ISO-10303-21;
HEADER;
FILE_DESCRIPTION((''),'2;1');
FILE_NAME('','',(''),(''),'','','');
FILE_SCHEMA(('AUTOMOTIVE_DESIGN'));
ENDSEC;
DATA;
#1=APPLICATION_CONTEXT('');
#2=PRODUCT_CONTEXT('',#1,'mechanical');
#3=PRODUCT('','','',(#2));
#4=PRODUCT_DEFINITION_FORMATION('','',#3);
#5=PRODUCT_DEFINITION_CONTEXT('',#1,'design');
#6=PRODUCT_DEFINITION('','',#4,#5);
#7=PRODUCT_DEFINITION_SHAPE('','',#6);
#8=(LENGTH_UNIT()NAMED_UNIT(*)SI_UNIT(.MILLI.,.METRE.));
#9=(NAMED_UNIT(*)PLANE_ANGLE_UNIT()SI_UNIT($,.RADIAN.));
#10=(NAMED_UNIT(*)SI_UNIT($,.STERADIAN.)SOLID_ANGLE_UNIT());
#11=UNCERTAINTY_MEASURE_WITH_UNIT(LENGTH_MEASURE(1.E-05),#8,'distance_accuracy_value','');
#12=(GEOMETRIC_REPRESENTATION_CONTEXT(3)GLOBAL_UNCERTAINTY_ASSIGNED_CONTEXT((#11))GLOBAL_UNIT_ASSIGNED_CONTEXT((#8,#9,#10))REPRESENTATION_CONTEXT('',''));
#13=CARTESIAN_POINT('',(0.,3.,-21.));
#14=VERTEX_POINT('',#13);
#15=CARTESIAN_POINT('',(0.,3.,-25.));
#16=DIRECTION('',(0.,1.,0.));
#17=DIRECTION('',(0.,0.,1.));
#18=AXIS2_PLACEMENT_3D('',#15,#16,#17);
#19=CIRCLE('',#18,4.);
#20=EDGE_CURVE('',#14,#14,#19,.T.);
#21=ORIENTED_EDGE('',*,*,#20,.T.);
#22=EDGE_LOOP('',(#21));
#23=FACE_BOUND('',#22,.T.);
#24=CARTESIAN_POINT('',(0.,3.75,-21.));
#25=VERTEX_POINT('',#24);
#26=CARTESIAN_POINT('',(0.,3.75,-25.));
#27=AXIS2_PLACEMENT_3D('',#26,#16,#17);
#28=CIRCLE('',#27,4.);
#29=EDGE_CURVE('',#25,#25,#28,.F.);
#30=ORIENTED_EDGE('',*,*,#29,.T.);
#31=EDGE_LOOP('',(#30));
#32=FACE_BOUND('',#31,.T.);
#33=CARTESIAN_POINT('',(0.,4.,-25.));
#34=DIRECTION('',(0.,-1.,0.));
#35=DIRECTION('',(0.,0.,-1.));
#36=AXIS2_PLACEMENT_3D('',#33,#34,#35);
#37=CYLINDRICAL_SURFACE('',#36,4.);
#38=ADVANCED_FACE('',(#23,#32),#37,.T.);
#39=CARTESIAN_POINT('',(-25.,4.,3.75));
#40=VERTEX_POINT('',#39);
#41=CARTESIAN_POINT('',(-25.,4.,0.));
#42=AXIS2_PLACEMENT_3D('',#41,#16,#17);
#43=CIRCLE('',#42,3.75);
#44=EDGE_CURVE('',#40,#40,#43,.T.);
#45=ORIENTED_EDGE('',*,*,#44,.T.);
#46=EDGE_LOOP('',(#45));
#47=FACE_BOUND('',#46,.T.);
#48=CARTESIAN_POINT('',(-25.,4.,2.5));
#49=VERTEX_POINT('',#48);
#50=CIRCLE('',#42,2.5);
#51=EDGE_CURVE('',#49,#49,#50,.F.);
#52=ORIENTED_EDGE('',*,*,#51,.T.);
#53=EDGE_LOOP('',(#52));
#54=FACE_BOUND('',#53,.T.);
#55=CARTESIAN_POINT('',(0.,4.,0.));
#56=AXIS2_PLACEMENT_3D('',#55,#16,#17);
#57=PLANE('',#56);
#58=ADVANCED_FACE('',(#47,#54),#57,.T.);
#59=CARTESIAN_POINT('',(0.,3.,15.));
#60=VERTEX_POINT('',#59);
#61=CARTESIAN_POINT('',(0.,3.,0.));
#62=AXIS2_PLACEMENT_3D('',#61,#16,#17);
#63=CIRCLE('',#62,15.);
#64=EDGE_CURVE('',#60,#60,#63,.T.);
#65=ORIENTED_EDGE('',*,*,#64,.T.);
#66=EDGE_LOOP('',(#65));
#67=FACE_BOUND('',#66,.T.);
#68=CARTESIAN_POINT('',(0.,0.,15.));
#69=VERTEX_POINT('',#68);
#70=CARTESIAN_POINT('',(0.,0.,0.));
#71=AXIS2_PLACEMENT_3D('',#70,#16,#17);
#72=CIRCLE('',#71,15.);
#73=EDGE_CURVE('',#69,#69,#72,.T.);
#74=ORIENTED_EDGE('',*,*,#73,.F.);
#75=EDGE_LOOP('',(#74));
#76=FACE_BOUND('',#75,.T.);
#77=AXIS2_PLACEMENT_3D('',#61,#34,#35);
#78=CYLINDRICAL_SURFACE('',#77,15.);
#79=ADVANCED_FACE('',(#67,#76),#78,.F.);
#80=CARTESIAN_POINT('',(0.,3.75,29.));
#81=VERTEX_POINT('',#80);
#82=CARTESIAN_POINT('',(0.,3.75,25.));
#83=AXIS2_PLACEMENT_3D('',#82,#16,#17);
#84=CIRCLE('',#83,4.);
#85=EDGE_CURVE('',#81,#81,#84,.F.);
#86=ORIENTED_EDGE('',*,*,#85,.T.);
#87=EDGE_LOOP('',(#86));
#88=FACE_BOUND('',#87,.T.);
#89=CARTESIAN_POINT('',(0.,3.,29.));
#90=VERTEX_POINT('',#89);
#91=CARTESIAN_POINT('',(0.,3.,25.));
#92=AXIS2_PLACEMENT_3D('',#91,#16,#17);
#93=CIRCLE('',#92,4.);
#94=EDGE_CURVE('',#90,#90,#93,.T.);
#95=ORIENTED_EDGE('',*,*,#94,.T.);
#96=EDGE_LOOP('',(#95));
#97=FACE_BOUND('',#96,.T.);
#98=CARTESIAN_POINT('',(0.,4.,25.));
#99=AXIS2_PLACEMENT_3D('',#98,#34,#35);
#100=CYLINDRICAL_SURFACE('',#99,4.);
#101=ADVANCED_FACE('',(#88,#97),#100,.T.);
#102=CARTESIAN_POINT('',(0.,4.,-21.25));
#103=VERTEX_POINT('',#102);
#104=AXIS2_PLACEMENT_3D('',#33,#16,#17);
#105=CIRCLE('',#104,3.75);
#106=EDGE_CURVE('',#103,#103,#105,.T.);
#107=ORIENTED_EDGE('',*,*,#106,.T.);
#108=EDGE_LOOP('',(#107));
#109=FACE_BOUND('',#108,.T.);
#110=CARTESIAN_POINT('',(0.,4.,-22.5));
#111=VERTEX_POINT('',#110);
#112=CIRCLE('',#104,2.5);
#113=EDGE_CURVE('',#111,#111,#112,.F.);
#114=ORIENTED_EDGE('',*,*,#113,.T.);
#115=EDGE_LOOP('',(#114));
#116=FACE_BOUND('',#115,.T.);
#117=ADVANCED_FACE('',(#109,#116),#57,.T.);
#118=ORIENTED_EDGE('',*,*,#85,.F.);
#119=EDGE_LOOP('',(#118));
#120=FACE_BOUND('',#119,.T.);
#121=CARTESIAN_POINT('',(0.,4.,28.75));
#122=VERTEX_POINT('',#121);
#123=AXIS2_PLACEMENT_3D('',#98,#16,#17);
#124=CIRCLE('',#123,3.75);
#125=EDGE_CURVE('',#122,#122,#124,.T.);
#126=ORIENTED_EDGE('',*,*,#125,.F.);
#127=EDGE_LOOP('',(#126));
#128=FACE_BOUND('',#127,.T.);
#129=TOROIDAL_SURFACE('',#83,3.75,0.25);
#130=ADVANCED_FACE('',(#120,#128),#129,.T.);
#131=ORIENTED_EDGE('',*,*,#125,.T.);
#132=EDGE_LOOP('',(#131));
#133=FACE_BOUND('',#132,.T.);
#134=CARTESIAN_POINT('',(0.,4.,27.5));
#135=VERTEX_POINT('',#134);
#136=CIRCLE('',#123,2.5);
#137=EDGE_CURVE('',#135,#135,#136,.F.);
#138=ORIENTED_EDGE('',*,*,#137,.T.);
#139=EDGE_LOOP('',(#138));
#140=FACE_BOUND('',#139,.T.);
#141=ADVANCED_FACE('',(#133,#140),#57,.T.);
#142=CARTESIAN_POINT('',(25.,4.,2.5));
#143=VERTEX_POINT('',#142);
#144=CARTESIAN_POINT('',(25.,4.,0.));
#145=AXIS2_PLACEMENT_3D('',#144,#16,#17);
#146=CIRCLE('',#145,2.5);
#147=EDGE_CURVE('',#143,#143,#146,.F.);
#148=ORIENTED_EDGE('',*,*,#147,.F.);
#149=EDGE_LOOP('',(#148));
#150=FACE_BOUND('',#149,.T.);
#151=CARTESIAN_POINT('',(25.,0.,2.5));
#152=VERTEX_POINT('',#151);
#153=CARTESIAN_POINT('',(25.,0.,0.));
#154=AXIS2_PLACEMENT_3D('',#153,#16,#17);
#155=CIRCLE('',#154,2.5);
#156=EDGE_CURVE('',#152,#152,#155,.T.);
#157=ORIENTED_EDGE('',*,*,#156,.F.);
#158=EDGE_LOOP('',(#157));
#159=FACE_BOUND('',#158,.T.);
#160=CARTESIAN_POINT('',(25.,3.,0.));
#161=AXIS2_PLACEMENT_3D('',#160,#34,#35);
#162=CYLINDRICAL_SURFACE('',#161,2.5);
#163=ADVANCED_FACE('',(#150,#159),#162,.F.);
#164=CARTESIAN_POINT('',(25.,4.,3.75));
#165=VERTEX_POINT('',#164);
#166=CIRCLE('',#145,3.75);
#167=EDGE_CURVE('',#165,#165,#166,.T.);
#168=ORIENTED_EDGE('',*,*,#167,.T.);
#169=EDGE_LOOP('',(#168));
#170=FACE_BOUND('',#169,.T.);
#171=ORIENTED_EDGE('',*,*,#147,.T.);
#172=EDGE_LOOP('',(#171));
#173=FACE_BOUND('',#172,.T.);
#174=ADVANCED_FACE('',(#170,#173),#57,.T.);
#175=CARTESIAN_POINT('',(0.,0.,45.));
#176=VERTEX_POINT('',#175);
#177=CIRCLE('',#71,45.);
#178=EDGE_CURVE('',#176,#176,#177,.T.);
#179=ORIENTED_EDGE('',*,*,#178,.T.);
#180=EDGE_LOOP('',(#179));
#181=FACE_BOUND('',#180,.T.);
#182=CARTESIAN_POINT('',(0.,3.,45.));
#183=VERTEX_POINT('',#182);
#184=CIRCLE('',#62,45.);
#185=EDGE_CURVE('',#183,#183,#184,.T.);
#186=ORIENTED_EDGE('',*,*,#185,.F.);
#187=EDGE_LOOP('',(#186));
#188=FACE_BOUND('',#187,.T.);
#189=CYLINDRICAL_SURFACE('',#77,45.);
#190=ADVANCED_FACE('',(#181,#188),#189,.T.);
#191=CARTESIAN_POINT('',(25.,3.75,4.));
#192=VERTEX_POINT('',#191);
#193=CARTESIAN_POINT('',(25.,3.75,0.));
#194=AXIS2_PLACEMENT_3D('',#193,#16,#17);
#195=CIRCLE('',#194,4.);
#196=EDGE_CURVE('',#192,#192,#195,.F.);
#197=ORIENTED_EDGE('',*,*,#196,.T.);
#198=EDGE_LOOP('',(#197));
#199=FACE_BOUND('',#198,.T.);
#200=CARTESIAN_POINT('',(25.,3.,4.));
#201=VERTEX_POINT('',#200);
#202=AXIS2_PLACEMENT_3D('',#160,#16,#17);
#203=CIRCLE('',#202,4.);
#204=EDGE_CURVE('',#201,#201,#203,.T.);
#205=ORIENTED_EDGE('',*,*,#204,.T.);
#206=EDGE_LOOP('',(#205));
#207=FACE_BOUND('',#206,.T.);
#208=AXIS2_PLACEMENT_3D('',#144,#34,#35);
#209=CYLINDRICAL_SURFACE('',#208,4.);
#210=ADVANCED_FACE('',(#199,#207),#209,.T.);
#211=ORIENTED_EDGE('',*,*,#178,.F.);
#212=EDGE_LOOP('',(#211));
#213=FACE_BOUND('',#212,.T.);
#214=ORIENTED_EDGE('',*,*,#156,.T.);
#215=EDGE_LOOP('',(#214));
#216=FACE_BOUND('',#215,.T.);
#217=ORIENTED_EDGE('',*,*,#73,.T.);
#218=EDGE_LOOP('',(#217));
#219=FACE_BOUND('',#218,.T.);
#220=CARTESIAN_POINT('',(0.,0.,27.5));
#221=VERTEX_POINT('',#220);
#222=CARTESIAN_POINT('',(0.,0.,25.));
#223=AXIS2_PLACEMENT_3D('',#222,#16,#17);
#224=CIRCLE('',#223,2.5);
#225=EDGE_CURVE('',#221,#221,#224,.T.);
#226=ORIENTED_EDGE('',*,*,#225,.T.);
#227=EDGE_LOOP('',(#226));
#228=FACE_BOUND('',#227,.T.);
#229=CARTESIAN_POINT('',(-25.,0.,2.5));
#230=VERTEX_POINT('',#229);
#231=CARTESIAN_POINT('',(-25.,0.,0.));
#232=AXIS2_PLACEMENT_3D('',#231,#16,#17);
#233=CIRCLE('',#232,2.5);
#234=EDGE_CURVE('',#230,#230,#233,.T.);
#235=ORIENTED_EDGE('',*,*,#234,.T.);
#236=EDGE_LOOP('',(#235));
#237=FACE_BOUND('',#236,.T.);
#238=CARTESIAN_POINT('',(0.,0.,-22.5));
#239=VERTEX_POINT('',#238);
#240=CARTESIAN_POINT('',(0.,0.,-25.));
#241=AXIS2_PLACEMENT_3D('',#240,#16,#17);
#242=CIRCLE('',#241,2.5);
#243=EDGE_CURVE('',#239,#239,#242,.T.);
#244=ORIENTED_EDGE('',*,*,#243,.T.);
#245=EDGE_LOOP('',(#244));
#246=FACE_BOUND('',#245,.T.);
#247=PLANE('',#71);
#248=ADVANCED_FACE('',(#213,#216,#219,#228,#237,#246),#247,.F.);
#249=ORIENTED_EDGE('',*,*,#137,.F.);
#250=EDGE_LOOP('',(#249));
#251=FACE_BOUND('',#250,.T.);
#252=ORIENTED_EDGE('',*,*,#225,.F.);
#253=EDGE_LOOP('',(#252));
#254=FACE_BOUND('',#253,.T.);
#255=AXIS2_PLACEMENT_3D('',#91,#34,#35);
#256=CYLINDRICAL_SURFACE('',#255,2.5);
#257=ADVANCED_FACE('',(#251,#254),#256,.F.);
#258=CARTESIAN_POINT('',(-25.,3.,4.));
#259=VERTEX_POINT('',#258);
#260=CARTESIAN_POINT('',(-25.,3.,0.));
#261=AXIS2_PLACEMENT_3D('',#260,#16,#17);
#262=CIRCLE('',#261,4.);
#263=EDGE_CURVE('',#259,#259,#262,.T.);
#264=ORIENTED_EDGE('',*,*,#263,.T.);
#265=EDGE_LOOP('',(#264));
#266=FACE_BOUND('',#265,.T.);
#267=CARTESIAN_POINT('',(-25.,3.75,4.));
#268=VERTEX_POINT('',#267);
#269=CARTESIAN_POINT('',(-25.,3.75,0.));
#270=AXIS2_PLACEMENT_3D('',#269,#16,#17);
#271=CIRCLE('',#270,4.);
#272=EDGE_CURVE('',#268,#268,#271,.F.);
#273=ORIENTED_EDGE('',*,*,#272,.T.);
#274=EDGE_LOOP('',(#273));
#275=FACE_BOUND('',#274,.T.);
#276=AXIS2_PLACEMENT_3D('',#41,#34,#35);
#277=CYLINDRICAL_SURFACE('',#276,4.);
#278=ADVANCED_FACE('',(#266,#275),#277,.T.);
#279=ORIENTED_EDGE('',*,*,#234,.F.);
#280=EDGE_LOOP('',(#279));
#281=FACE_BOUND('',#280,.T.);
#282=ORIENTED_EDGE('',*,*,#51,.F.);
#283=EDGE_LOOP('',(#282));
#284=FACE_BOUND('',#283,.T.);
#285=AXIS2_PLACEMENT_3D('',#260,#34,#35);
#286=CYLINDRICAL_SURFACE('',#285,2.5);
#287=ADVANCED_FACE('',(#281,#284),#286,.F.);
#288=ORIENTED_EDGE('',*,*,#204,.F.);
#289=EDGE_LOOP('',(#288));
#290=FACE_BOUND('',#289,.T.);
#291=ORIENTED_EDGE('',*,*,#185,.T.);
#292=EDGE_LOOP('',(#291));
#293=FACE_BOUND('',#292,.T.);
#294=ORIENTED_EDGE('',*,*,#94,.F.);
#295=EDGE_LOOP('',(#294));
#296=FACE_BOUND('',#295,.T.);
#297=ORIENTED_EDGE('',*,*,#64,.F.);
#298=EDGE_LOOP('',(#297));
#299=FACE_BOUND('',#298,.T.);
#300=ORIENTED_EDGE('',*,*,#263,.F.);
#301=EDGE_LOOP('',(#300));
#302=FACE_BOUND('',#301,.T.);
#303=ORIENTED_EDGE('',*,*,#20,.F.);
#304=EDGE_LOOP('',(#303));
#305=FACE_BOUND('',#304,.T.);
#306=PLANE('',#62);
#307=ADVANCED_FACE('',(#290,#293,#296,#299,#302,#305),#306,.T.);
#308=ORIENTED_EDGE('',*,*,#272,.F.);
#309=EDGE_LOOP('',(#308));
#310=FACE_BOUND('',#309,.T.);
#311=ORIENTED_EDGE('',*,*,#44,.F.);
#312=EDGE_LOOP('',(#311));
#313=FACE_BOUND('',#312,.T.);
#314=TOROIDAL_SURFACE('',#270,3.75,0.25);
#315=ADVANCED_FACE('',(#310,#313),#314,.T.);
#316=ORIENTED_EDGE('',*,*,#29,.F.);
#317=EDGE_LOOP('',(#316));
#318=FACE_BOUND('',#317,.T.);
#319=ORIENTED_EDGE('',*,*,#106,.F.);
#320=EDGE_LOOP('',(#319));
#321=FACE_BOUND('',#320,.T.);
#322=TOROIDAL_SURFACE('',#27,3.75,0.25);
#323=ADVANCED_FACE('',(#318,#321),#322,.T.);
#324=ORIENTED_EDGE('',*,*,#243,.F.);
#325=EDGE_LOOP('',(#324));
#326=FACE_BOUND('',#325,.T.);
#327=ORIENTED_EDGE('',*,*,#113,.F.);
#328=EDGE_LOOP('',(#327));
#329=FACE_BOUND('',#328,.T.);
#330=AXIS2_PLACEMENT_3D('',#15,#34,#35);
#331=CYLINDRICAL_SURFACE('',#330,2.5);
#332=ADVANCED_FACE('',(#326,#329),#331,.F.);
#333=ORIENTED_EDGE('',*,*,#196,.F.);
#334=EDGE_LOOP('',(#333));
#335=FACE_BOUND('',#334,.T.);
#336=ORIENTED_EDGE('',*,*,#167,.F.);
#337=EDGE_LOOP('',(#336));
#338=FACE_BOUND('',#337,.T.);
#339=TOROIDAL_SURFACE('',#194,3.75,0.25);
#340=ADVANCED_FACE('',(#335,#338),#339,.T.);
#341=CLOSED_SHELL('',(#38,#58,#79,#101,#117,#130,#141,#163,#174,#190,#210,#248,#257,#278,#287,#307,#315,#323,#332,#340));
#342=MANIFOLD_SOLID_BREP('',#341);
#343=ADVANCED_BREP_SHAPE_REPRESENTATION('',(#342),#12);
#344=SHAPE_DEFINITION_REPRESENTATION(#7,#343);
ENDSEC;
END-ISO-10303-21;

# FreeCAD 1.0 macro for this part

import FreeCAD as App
import Part
import Sketcher
Q = App.Units.Quantity


def edges_at(feature, points):
    """Names of the edges that pass closest to the given points."""
    edges = feature.Shape.Edges
    near = lambda p: min(range(len(edges)), key=lambda i: edges[i].distToShape(Part.Vertex(*p))[0])
    return sorted({f"Edge{near(p) + 1}" for p in points})

doc = App.newDocument("Part")
body = doc.addObject("PartDesign::Body", "Body")

# Sketch on XZ plane
sketch1 = body.newObject("Sketcher::SketchObject", "Sketch")
sketch1.AttachmentSupport = (doc.getObject("XZ_Plane"), [""])
sketch1.MapMode = "FlatFace"
sketch1.addGeometry(Part.Circle(App.Vector(0, 0, 0), App.Vector(0, 0, 1), 45), False)
sketch1.addGeometry(Part.Circle(App.Vector(0, -25, 0), App.Vector(0, 0, 1), 2.5), False)
sketch1.addGeometry(Part.Circle(App.Vector(-25, 0, 0), App.Vector(0, 0, 1), 2.5), False)
sketch1.addGeometry(Part.Circle(App.Vector(25, 0, 0), App.Vector(0, 0, 1), 2.5), False)
sketch1.addGeometry(Part.Circle(App.Vector(0, 0, 0), App.Vector(0, 0, 1), 15), False)
sketch1.addGeometry(Part.Circle(App.Vector(0, 25, 0), App.Vector(0, 0, 1), 2.5), False)
sketch1.addConstraint(Sketcher.Constraint("Coincident", 0, 3, -1, 1))
sketch1.addConstraint(Sketcher.Constraint("Coincident", 4, 3, -1, 1))
sketch1.addConstraint(Sketcher.Constraint("Equal", 1, 2))
sketch1.addConstraint(Sketcher.Constraint("Equal", 2, 3))
sketch1.addConstraint(Sketcher.Constraint("Equal", 3, 5))
sketch1.addConstraint(Sketcher.Constraint("Symmetric", 2, 3, 3, 3, -1, 1))
sketch1.addConstraint(Sketcher.Constraint("Symmetric", 1, 3, 5, 3, -1, 1))
sketch1.addConstraint(Sketcher.Constraint("PointOnObject", 1, 3, -2))
sketch1.addConstraint(Sketcher.Constraint("PointOnObject", 2, 3, -1))
sketch1.addConstraint(Sketcher.Constraint("Diameter", 0, Q("90 mm")))
sketch1.addConstraint(Sketcher.Constraint("Diameter", 1, Q("5 mm")))
sketch1.addConstraint(Sketcher.Constraint("Diameter", 4, Q("30 mm")))
sketch1.addConstraint(Sketcher.Constraint("DistanceY", 1, 3, -1, 1, Q("25 mm")))
sketch1.addConstraint(Sketcher.Constraint("DistanceX", 2, 3, -1, 1, Q("25 mm")))
pad1 = body.newObject("PartDesign::Pad", "Pad")
pad1.Profile = sketch1
pad1.Length = 3
pad1.Reversed = True

# Sketch on XZ plane
sketch2 = body.newObject("Sketcher::SketchObject", "Sketch001")
sketch2.AttachmentSupport = (doc.getObject("XZ_Plane"), [""])
sketch2.MapMode = "FlatFace"
sketch2.AttachmentOffset = App.Placement(App.Vector(0, 0, -3), App.Rotation())
sketch2.addGeometry(Part.Circle(App.Vector(25, 0, 0), App.Vector(0, 0, 1), 4), False)
sketch2.addGeometry(Part.Circle(App.Vector(25, 0, 0), App.Vector(0, 0, 1), 2.5), False)
sketch2.addGeometry(Part.Circle(App.Vector(0, -25, 0), App.Vector(0, 0, 1), 4), False)
sketch2.addGeometry(Part.Circle(App.Vector(0, -25, 0), App.Vector(0, 0, 1), 2.5), False)
sketch2.addGeometry(Part.Circle(App.Vector(0, 25, 0), App.Vector(0, 0, 1), 4), False)
sketch2.addGeometry(Part.Circle(App.Vector(0, 25, 0), App.Vector(0, 0, 1), 2.5), False)
sketch2.addGeometry(Part.Circle(App.Vector(-25, 0, 0), App.Vector(0, 0, 1), 4), False)
sketch2.addGeometry(Part.Circle(App.Vector(-25, 0, 0), App.Vector(0, 0, 1), 2.5), False)
sketch2.addConstraint(Sketcher.Constraint("Coincident", 1, 3, 0, 3))
sketch2.addConstraint(Sketcher.Constraint("Coincident", 3, 3, 2, 3))
sketch2.addConstraint(Sketcher.Constraint("Coincident", 5, 3, 4, 3))
sketch2.addConstraint(Sketcher.Constraint("Coincident", 7, 3, 6, 3))
sketch2.addConstraint(Sketcher.Constraint("Equal", 0, 2))
sketch2.addConstraint(Sketcher.Constraint("Equal", 1, 3))
sketch2.addConstraint(Sketcher.Constraint("Equal", 2, 4))
sketch2.addConstraint(Sketcher.Constraint("Equal", 3, 5))
sketch2.addConstraint(Sketcher.Constraint("Equal", 4, 6))
sketch2.addConstraint(Sketcher.Constraint("Equal", 5, 7))
sketch2.addConstraint(Sketcher.Constraint("Symmetric", 2, 3, 4, 3, -1, 1))
sketch2.addConstraint(Sketcher.Constraint("Symmetric", 0, 3, 6, 3, -1, 1))
sketch2.addConstraint(Sketcher.Constraint("PointOnObject", 0, 3, -1))
sketch2.addConstraint(Sketcher.Constraint("PointOnObject", 2, 3, -2))
sketch2.addConstraint(Sketcher.Constraint("Diameter", 0, Q("8 mm")))
sketch2.addConstraint(Sketcher.Constraint("Diameter", 1, Q("5 mm")))
sketch2.addConstraint(Sketcher.Constraint("DistanceX", -1, 1, 0, 3, Q("25 mm")))
sketch2.addConstraint(Sketcher.Constraint("DistanceY", 2, 3, -1, 1, Q("25 mm")))
pad2 = body.newObject("PartDesign::Pad", "Pad001")
pad2.Profile = sketch2
pad2.Length = 1
pad2.Reversed = True
doc.recompute()

fillet = body.newObject("PartDesign::Fillet", "Fillet")
fillet.Base = (pad2, edges_at(pad2, [
    (-25, 4, -4),
    (0, 4, 21),
    (25, 4, -4),
    (0, 4, -29),
]))
fillet.Radius = 0.25

doc.recompute()
